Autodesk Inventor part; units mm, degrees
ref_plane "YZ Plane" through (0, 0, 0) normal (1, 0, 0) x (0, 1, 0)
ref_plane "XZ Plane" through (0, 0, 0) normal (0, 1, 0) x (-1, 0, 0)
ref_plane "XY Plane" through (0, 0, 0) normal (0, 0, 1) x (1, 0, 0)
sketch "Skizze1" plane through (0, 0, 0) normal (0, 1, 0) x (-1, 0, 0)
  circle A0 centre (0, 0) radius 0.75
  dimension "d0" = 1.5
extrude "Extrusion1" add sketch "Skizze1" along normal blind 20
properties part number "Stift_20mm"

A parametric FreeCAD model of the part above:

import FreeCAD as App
import Part
import Sketcher

V = App.Vector

doc = App.newDocument("Part")
params = doc.addObject("Spreadsheet::Sheet", "Params")
for row, (alias, value) in enumerate([
    ("sketch1_diameter", "1.5 mm"),
    ("pad1_length", "20 mm"),
], start=1):
    params.set(f"A{row}", alias)
    params.set(f"B{row}", "=" + value)
    params.setAlias(f"B{row}", alias)

body = doc.addObject("PartDesign::Body", "Body")

sketch1 = doc.addObject("Sketcher::SketchObject", "Sketch")
body.addObject(sketch1)
sketch1.AttachmentSupport = (doc.XZ_Plane, [""])
sketch1.MapMode = "FlatFace"
sketch1.addGeometry(Part.Circle(V(0, 0, 0), V(0, 0, 1), 0.75), False)
sketch1.addConstraint([
    Sketcher.Constraint("Coincident", 0, 3, -1, 1),
    Sketcher.Constraint("Diameter", 0, 1.5),
])
sketch1.setExpression("Constraints[1]", "Params.sketch1_diameter")
pad1 = doc.addObject("PartDesign::Pad", "Pad")
body.addObject(pad1)
pad1.Profile = sketch1
pad1.setExpression("Length", "Params.pad1_length")
pad1.Reversed = True

doc.recompute()
